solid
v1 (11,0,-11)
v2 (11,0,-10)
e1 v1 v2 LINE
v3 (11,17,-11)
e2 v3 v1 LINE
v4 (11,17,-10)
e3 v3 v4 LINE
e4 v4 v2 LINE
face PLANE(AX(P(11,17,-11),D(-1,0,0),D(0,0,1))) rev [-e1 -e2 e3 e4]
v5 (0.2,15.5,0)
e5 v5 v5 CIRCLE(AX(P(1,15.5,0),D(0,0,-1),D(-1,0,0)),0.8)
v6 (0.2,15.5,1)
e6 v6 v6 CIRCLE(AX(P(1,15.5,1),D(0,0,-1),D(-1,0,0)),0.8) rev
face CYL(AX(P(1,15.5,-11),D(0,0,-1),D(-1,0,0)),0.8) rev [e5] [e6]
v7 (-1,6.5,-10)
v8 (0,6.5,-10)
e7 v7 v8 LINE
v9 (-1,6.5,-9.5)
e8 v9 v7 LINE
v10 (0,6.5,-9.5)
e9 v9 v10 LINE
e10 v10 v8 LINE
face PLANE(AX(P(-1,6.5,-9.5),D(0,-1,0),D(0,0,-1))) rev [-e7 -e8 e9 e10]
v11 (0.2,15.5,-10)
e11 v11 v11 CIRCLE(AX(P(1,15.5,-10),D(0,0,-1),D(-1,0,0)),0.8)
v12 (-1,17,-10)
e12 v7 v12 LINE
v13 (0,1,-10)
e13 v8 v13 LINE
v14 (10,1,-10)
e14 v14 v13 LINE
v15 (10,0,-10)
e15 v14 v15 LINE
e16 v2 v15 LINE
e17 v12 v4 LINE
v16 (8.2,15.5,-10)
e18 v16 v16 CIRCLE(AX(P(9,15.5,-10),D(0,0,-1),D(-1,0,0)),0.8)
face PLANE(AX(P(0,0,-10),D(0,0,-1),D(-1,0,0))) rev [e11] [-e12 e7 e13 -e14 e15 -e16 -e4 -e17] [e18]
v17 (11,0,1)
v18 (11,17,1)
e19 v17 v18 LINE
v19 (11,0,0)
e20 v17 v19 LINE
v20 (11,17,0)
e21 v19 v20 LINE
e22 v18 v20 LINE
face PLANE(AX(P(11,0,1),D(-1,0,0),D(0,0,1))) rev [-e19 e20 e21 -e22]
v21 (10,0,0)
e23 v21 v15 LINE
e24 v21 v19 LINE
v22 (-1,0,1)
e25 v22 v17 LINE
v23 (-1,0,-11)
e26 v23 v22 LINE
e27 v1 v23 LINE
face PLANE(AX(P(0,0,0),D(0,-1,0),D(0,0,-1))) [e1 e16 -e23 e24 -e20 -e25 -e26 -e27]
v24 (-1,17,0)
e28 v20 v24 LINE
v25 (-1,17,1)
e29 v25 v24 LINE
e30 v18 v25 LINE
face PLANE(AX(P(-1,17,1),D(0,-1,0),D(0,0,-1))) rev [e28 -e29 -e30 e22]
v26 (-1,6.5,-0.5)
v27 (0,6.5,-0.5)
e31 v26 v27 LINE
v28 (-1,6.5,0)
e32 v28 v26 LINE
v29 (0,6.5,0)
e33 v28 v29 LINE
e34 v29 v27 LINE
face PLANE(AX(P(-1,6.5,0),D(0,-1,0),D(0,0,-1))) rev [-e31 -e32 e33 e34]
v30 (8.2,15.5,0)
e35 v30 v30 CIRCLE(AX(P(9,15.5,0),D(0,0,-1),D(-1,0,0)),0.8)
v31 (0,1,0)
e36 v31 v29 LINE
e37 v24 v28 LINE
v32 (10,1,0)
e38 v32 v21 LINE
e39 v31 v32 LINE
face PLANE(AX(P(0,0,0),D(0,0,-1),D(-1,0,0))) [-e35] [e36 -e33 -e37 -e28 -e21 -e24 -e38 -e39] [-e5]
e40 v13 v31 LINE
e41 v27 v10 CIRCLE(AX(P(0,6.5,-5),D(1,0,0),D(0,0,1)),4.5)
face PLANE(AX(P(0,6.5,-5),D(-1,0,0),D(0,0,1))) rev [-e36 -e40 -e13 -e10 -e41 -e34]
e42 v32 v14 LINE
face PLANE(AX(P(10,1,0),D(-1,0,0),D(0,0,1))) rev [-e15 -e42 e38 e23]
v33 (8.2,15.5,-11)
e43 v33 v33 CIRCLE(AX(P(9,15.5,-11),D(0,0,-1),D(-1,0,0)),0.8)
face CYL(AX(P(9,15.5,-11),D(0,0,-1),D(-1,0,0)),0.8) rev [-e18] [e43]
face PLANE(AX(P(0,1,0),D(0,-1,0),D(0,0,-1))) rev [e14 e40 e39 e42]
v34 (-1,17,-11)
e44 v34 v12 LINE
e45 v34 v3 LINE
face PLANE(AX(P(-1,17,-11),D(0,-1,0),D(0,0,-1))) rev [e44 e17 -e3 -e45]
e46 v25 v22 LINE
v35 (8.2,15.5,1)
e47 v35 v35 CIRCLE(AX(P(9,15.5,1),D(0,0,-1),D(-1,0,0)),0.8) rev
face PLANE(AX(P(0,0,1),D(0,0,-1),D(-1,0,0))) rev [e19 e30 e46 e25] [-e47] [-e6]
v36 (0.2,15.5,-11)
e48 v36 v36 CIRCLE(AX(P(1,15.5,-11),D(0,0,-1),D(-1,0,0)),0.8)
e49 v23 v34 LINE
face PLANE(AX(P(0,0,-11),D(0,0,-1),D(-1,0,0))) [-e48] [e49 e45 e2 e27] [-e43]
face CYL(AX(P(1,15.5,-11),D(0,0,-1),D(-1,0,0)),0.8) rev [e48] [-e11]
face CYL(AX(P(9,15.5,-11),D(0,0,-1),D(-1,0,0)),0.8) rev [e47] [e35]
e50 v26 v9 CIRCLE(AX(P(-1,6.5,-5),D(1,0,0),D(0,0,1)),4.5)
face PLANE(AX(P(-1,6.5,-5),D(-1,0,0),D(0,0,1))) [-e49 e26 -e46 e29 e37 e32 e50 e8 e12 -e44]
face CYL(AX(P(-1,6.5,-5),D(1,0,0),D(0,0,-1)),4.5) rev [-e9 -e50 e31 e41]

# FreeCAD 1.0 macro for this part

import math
import FreeCAD as App
import Part
import Sketcher
from FreeCAD import Vector
Q = App.Units.Quantity

doc = App.newDocument("Part")
body = doc.addObject("PartDesign::Body", "Body")

sketch1 = body.newObject("Sketcher::SketchObject", "Sketch")
sketch1.AttachmentSupport = (doc.getObject("XZ_Plane"), [""])
sketch1.MapMode = "FlatFace"
sketch1.addGeometry([
    Part.LineSegment(Vector(0, -10, 0), Vector(0, 0, 0)),
    Part.LineSegment(Vector(0, 0, 0), Vector(10, 0, 0)),
    Part.LineSegment(Vector(10, 0, 0), Vector(10, -10, 0)),
    Part.LineSegment(Vector(10, -10, 0), Vector(0, -10, 0)),
], False)
sketch1.addConstraint([
    Sketcher.Constraint("Coincident", 0, 2, 1, 1),
    Sketcher.Constraint("Coincident", 1, 2, 2, 1),
    Sketcher.Constraint("Coincident", 2, 2, 3, 1),
    Sketcher.Constraint("Coincident", 3, 2, 0, 1),
    Sketcher.Constraint("Vertical", 0),
    Sketcher.Constraint("Horizontal", 1),
    Sketcher.Constraint("Vertical", 2),
    Sketcher.Constraint("Horizontal", 3),
    Sketcher.Constraint("Coincident", 0, 2, -1, 1),
    Sketcher.Constraint("Equal", 3, 0),
    Sketcher.Constraint("DistanceX", 1, 1, 1, 2, Q("10 mm")),
])
pad1 = body.newObject("PartDesign::Pad", "Pad")
pad1.Profile = sketch1
pad1.Length = 1
pad1.Reversed = True

sketch2 = body.newObject("Sketcher::SketchObject", "Sketch001")
sketch2.AttachmentSupport = (doc.getObject("YZ_Plane"), [""])
sketch2.MapMode = "FlatFace"
sketch2.addGeometry([
    Part.LineSegment(Vector(6.5, -9.5, 0), Vector(6.5, -10, 0)),
    Part.LineSegment(Vector(6.5, -10, 0), Vector(0, -10, 0)),
    Part.LineSegment(Vector(0, -10, 0), Vector(0, 0, 0)),
    Part.LineSegment(Vector(0, 0, 0), Vector(6.5, 0, 0)),
    Part.LineSegment(Vector(6.5, 0, 0), Vector(6.5, -0.5, 0)),
    Part.ArcOfCircle(Part.Circle(Vector(6.5, -5, 0), Vector(0, 0, 1), 4.5), math.radians(90), math.radians(270)),
], False)
sketch2.addConstraint([
    Sketcher.Constraint("Coincident", 0, 2, 1, 1),
    Sketcher.Constraint("Coincident", 1, 2, 2, 1),
    Sketcher.Constraint("Coincident", 2, 2, 3, 1),
    Sketcher.Constraint("Coincident", 3, 2, 4, 1),
    Sketcher.Constraint("Coincident", 4, 2, 5, 1),
    Sketcher.Constraint("Coincident", 5, 2, 0, 1),
    Sketcher.Constraint("Vertical", 0),
    Sketcher.Constraint("Horizontal", 1),
    Sketcher.Constraint("Vertical", 2),
    Sketcher.Constraint("Horizontal", 3),
    Sketcher.Constraint("Vertical", 4),
    Sketcher.Constraint("Coincident", 2, 2, -1, 1),
    Sketcher.Constraint("Vertical", 5, 3, 0, 2),
    Sketcher.Constraint("Vertical", 0, 2, 3, 2),
    Sketcher.Constraint("Equal", 0, 4),
    Sketcher.Constraint("Radius", 5, Q("4.5 mm")),
    Sketcher.Constraint("DistanceY", 2, 1, 2, 2, Q("10 mm")),
    Sketcher.Constraint("DistanceX", 1, 2, 1, 1, Q("6.5 mm")),
])
pad2 = body.newObject("PartDesign::Pad", "Pad001")
pad2.Profile = sketch2
pad2.Length = 1
pad2.Reversed = True

sketch3 = body.newObject("Sketcher::SketchObject", "Sketch002")
sketch3.AttachmentSupport = (doc.getObject("XY_Plane"), [""])
sketch3.MapMode = "FlatFace"
sketch3.addGeometry([
    Part.LineSegment(Vector(-1, 17, 0), Vector(-1, 0, 0)),
    Part.LineSegment(Vector(-1, 0, 0), Vector(11, 0, 0)),
    Part.LineSegment(Vector(11, 0, 0), Vector(11, 17, 0)),
    Part.LineSegment(Vector(11, 17, 0), Vector(-1, 17, 0)),
], False)
sketch3.addConstraint([
    Sketcher.Constraint("Coincident", 0, 2, 1, 1),
    Sketcher.Constraint("Coincident", 1, 2, 2, 1),
    Sketcher.Constraint("Coincident", 2, 2, 3, 1),
    Sketcher.Constraint("Coincident", 3, 2, 0, 1),
    Sketcher.Constraint("Vertical", 0),
    Sketcher.Constraint("Horizontal", 1),
    Sketcher.Constraint("Vertical", 2),
    Sketcher.Constraint("Horizontal", 3),
    Sketcher.Constraint("PointOnObject", 0, 2, -1),
    Sketcher.Constraint("DistanceX", 1, 1, 1, 2, Q("12 mm")),
    Sketcher.Constraint("DistanceY", 0, 2, 0, 1, Q("17 mm")),
    Sketcher.Constraint("DistanceX", 0, 2, -1, 1, Q("1 mm")),
])
pad3 = body.newObject("PartDesign::Pad", "Pad002")
pad3.Profile = sketch3
pad3.Length = 1

sketch4 = body.newObject("Sketcher::SketchObject", "Sketch003")
sketch4.AttachmentSupport = (doc.getObject("XY_Plane"), [""])
sketch4.MapMode = "FlatFace"
sketch4.AttachmentOffset = App.Placement(Vector(0, 0, -10), App.Rotation())
sketch4.addGeometry([
    Part.LineSegment(Vector(11, 17, 0), Vector(11, 0, 0)),
    Part.LineSegment(Vector(11, 0, 0), Vector(-1, 0, 0)),
    Part.LineSegment(Vector(-1, 0, 0), Vector(-1, 17, 0)),
    Part.LineSegment(Vector(-1, 17, 0), Vector(11, 17, 0)),
], False)
sketch4.addConstraint([
    Sketcher.Constraint("Coincident", 0, 2, 1, 1),
    Sketcher.Constraint("Coincident", 1, 2, 2, 1),
    Sketcher.Constraint("Coincident", 2, 2, 3, 1),
    Sketcher.Constraint("Coincident", 3, 2, 0, 1),
    Sketcher.Constraint("Vertical", 0),
    Sketcher.Constraint("Horizontal", 1),
    Sketcher.Constraint("Vertical", 2),
    Sketcher.Constraint("Horizontal", 3),
    Sketcher.Constraint("PointOnObject", 0, 2, -1),
    Sketcher.Constraint("DistanceX", 1, 2, 1, 1, Q("12 mm")),
    Sketcher.Constraint("DistanceY", 0, 2, 0, 1, Q("17 mm")),
    Sketcher.Constraint("DistanceX", -1, 1, 0, 2, Q("11 mm")),
])
pad4 = body.newObject("PartDesign::Pad", "Pad003")
pad4.Profile = sketch4
pad4.Length = 1
pad4.Reversed = True

sketch5 = body.newObject("Sketcher::SketchObject", "Sketch004")
sketch5.AttachmentSupport = (doc.getObject("XY_Plane"), [""])
sketch5.MapMode = "FlatFace"
sketch5.AttachmentOffset = App.Placement(Vector(0, 0, -11), App.Rotation())
sketch5.addGeometry([
    Part.Circle(Vector(9, 15.5, 0), Vector(0, 0, 1), 0.8),
    Part.Circle(Vector(1, 15.5, 0), Vector(0, 0, 1), 0.8),
], False)
sketch5.addConstraint([
    Sketcher.Constraint("Equal", 0, 1),
    Sketcher.Constraint("Horizontal", 0, 3, 1, 3),
    Sketcher.Constraint("Diameter", 0, Q("1.6 mm")),
    Sketcher.Constraint("DistanceX", -1, 1, 0, 3, Q("9 mm")),
    Sketcher.Constraint("DistanceX", -1, 1, 1, 3, Q("1 mm")),
    Sketcher.Constraint("DistanceY", -1, 1, 0, 3, Q("15.5 mm")),
])
doc.recompute()
hole = body.newObject("PartDesign::Hole", "Hole")
hole.Profile = sketch5
hole.ThreadType = "None"
hole.Diameter = 1.6
hole.DepthType = "ThroughAll"
hole.Reversed = True

doc.recompute()
